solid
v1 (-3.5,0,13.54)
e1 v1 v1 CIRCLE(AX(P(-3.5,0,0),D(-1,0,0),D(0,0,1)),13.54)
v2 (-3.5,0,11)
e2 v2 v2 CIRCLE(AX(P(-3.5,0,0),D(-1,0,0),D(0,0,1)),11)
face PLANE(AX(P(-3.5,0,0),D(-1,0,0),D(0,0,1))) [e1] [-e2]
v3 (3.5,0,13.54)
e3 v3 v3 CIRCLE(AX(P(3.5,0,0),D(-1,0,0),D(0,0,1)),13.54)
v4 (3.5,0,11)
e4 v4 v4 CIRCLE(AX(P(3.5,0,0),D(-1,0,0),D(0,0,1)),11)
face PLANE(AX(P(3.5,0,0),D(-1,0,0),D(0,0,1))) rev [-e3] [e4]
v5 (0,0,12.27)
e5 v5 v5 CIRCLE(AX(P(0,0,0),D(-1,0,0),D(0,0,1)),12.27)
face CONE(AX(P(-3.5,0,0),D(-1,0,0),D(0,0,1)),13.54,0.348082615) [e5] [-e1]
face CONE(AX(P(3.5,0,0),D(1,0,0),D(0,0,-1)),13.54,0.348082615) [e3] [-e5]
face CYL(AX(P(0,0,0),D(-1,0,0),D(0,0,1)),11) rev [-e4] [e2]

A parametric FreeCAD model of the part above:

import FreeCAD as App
import Part
import Sketcher

V = App.Vector
Q = App.Units.Quantity

doc = App.newDocument("Part")
body = doc.addObject("PartDesign::Body", "Body")

sketch1 = doc.addObject("Sketcher::SketchObject", "Sketch")
body.addObject(sketch1)
sketch1.AttachmentSupport = (doc.XY_Plane, [""])
sketch1.MapMode = "FlatFace"
sketch1.addGeometry(Part.LineSegment(V(-3.5, 11, 0), V(3.5, 11, 0)), False)
sketch1.addGeometry(Part.LineSegment(V(3.5, 11, 0), V(3.5, 13.5, 0)), False)
sketch1.addGeometry(Part.LineSegment(V(3.5, 13.5, 0), V(0, 12.3, 0)), False)
sketch1.addGeometry(Part.LineSegment(V(0, 12.3, 0), V(-3.5, 13.5, 0)), False)
sketch1.addGeometry(Part.LineSegment(V(-3.5, 13.5, 0), V(-3.5, 11, 0)), False)
sketch1.addConstraint(Sketcher.Constraint("Coincident", 0, 2, 1, 1))
sketch1.addConstraint(Sketcher.Constraint("Coincident", 1, 2, 2, 1))
sketch1.addConstraint(Sketcher.Constraint("Coincident", 2, 2, 3, 1))
sketch1.addConstraint(Sketcher.Constraint("Coincident", 3, 2, 4, 1))
sketch1.addConstraint(Sketcher.Constraint("Coincident", 4, 2, 0, 1))
sketch1.addConstraint(Sketcher.Constraint("Horizontal", 0))
sketch1.addConstraint(Sketcher.Constraint("Vertical", 1))
sketch1.addConstraint(Sketcher.Constraint("Vertical", 4))
sketch1.addConstraint(Sketcher.Constraint("Symmetric", 1, 2, 3, 2, -2))
sketch1.addConstraint(Sketcher.Constraint("PointOnObject", 2, 2, -2))
sketch1.addConstraint(Sketcher.Constraint("DistanceX", 0, 1, 0, 2, Q("7 mm")))
sketch1.addConstraint(Sketcher.Constraint("DistanceY", -1, 1, 0, 2, Q("11 mm")))
sketch1.addConstraint(Sketcher.Constraint("DistanceY", 1, 1, 1, 2, Q("2.54 mm")))
sketch1.addConstraint(Sketcher.Constraint("DistanceY", -1, 1, 2, 2, Q("12.27 mm")))
revolution = doc.addObject("PartDesign::Revolution", "Revolution")
body.addObject(revolution)
revolution.Profile = sketch1
revolution.ReferenceAxis = (sketch1, ["H_Axis"])
revolution.Angle = 360

doc.recompute()
